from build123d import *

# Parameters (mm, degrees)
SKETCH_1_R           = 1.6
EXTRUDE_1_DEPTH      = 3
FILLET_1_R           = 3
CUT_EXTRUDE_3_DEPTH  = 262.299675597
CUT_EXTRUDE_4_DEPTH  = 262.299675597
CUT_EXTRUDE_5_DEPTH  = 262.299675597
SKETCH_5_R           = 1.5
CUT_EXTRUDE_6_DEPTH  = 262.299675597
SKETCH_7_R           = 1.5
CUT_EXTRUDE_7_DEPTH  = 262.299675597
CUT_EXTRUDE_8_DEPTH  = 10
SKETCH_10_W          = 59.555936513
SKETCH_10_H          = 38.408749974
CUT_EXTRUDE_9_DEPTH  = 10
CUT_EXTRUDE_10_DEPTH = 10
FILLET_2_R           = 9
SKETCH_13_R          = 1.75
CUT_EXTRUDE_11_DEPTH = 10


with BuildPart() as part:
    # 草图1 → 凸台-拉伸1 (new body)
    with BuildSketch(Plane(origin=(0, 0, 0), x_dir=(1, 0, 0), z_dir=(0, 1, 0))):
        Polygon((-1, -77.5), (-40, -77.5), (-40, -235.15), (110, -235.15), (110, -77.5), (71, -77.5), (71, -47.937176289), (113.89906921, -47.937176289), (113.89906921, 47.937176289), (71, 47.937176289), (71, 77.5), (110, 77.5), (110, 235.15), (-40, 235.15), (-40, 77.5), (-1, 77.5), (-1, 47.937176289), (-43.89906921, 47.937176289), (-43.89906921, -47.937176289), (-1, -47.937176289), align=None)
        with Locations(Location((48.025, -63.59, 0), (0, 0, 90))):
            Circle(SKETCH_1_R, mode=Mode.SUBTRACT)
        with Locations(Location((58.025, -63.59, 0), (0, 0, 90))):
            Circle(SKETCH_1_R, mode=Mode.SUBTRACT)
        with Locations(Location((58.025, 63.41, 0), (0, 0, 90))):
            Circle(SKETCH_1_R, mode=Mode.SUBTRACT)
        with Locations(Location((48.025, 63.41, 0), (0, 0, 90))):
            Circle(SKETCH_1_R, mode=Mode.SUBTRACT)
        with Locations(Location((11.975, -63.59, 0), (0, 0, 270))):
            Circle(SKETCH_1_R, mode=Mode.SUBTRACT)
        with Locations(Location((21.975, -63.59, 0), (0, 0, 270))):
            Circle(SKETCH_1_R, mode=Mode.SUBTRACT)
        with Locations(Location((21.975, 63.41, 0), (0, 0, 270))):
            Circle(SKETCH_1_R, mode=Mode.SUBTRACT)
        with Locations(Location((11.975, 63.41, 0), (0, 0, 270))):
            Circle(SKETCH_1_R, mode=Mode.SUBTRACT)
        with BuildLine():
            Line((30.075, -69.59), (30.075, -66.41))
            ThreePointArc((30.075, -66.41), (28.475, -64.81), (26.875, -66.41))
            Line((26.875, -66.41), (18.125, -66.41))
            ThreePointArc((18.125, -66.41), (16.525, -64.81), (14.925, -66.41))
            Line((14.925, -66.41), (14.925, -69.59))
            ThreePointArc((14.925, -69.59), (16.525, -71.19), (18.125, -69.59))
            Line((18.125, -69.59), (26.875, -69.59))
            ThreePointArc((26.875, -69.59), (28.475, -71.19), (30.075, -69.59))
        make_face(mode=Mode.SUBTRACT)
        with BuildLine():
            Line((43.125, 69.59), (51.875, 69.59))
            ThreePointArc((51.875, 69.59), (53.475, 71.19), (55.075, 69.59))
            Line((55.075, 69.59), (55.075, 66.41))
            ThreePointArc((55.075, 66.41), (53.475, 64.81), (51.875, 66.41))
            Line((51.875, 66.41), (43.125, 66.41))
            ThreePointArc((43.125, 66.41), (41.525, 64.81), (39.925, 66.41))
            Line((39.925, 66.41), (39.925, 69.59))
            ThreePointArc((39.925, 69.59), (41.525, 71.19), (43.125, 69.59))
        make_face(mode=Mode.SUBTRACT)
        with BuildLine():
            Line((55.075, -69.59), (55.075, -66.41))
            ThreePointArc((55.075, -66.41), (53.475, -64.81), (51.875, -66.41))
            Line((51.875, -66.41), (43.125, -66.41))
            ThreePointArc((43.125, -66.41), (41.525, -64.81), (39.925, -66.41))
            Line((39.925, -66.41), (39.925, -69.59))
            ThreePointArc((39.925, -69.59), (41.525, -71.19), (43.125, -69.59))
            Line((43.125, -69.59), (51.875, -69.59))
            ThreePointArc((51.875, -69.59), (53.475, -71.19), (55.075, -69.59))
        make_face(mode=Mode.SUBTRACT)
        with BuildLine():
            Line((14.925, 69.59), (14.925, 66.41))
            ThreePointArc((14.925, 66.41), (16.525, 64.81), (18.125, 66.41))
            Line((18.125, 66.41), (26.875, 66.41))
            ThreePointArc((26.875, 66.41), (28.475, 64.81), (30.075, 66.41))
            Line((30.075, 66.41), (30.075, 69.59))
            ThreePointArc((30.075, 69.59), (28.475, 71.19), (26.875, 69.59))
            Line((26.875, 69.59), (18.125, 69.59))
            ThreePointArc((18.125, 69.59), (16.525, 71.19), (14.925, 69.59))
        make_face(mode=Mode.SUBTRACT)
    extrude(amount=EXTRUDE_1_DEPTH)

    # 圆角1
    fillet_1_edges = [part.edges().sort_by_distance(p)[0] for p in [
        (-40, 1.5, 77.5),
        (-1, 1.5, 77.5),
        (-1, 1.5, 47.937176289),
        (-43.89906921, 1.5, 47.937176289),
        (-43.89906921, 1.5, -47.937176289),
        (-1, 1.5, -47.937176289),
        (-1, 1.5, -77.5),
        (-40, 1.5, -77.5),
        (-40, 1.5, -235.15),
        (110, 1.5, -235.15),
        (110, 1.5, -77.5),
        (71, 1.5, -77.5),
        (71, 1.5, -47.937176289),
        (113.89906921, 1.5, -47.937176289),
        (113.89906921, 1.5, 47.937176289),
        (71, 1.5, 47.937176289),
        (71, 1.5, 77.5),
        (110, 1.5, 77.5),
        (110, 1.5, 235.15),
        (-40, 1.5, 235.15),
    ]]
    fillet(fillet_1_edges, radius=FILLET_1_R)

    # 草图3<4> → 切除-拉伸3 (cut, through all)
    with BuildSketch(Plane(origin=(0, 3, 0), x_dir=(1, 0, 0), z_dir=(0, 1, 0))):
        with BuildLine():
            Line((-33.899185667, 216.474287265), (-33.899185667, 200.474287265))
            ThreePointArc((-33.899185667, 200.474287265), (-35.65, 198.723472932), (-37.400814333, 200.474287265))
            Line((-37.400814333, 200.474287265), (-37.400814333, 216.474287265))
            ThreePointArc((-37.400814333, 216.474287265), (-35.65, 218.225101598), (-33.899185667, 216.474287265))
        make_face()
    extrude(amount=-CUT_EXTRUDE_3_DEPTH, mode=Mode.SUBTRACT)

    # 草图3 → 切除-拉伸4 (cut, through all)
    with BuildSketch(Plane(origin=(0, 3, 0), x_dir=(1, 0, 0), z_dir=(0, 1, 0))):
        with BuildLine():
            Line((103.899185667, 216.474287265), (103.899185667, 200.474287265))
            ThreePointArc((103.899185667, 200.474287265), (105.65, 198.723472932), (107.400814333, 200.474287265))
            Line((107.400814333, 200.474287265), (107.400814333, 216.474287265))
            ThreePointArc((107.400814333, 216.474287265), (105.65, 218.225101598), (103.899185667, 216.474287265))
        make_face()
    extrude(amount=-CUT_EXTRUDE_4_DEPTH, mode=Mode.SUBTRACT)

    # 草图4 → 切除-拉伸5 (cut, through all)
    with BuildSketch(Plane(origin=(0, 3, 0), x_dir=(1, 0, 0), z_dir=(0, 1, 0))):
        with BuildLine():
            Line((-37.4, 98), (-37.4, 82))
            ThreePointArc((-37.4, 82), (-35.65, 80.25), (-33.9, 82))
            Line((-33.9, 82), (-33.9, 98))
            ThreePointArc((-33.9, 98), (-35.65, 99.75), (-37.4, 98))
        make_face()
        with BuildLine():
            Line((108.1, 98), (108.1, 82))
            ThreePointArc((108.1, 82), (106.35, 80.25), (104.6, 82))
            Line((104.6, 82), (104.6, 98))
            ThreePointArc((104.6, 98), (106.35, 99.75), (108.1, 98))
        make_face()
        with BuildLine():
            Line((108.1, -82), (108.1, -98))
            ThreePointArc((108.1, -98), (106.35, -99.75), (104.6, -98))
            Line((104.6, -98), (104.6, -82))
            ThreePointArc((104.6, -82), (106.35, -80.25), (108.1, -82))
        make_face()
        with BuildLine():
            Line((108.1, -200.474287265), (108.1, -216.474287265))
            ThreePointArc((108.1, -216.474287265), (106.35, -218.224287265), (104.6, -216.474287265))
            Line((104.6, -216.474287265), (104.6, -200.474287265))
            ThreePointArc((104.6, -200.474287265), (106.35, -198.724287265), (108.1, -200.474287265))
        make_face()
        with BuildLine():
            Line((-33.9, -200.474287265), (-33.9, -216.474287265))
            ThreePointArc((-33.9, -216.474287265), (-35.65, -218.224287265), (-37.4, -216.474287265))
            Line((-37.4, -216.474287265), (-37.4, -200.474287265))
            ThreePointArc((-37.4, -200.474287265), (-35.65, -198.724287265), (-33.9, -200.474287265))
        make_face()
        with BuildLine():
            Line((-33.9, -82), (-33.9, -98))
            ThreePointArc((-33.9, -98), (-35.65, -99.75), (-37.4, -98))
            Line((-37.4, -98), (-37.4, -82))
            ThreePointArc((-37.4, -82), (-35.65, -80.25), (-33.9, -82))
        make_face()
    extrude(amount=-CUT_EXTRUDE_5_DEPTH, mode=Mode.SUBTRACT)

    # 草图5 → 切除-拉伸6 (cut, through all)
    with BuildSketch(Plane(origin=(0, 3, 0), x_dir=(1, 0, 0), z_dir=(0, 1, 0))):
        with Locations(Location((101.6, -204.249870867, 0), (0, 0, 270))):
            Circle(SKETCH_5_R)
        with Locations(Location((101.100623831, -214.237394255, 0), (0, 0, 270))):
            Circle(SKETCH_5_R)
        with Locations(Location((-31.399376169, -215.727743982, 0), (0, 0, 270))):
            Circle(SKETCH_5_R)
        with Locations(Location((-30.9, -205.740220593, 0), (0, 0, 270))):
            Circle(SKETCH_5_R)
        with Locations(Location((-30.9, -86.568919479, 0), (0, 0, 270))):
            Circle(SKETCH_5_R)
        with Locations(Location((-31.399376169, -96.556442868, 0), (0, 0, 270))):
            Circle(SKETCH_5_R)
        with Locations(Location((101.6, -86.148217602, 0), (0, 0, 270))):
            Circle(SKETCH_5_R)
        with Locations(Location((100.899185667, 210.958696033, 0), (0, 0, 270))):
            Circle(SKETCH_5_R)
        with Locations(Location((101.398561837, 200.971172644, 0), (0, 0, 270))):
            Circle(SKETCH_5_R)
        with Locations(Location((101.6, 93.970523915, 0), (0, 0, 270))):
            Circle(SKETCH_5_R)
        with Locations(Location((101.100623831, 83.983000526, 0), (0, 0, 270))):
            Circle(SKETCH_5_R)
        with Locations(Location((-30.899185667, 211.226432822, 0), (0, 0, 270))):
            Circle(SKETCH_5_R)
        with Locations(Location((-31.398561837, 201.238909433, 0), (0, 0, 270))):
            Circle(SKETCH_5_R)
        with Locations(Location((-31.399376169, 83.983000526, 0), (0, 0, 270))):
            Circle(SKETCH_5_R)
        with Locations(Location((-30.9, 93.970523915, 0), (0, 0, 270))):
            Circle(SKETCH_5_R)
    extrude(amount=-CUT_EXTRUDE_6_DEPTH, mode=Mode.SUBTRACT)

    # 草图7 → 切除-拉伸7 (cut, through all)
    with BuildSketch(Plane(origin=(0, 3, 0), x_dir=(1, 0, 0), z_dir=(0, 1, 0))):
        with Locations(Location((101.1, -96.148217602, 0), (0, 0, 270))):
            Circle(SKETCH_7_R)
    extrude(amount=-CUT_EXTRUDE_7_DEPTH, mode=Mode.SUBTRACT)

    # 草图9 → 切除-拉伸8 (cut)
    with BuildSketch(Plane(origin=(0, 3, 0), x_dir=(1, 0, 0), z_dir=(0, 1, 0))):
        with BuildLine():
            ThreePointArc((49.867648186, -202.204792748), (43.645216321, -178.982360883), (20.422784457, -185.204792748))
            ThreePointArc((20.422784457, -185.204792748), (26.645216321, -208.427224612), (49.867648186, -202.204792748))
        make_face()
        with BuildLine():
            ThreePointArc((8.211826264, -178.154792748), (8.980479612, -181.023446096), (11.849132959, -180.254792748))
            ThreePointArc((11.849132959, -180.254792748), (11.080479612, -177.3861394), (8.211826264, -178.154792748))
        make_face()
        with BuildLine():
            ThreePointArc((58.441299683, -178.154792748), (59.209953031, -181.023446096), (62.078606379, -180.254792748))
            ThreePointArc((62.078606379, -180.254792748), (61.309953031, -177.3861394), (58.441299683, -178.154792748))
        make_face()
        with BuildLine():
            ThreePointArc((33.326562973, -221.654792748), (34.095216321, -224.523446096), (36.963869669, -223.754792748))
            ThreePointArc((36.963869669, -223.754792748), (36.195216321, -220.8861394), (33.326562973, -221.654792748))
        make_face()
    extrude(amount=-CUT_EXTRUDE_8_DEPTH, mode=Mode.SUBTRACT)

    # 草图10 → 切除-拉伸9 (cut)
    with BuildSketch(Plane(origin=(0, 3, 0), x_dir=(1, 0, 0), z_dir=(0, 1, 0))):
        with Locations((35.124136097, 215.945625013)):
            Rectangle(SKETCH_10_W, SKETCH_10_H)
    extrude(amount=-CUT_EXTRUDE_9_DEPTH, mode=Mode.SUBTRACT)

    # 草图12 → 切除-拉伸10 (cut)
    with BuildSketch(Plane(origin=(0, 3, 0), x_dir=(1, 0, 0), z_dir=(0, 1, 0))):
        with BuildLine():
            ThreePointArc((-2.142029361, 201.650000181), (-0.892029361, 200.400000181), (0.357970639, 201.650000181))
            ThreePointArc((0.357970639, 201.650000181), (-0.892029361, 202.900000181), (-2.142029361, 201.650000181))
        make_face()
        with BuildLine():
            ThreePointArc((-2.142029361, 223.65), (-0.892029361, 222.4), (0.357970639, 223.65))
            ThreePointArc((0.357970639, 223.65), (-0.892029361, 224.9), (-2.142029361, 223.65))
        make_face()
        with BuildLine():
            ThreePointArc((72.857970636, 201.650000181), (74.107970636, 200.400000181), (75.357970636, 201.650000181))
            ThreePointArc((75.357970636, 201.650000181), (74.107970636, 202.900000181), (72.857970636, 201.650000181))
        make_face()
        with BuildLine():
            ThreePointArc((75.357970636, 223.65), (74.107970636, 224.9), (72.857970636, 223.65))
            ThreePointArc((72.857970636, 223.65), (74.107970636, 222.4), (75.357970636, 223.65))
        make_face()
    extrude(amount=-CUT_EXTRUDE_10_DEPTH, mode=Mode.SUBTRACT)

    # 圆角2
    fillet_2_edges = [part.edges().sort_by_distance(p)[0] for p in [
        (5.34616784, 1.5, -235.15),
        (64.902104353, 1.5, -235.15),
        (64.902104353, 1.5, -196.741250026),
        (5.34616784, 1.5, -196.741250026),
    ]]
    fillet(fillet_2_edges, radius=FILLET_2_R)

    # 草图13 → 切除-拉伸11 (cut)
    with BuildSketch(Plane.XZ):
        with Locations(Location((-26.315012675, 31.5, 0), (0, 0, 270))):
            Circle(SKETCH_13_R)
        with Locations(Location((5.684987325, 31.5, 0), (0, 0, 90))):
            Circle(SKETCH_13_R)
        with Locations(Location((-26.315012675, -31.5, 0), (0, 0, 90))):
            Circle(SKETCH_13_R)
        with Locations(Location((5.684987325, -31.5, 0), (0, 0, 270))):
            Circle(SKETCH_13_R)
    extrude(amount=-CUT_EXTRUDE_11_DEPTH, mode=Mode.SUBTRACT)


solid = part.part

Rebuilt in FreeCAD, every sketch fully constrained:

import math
import FreeCAD as App
import Part
import Sketcher
from FreeCAD import Vector
Q = App.Units.Quantity


def edges_at(feature, points):
    """Names of the edges that pass closest to the given points."""
    edges = feature.Shape.Edges
    near = lambda p: min(range(len(edges)), key=lambda i: edges[i].distToShape(Part.Vertex(*p))[0])
    return sorted({f"Edge{near(p) + 1}" for p in points})


def add_polygon(sketch, points):
    """Adds a closed chain of lines whose ends are joined by coincident constraints."""
    first, n = sketch.GeometryCount, len(points)
    for a, b in zip(points, points[1:] + points[:1]):
        sketch.addGeometry(Part.LineSegment(App.Vector(*a, 0), App.Vector(*b, 0)), False)
    for i in range(n):
        sketch.addConstraint(Sketcher.Constraint("Coincident", first + i, 2, first + (i + 1) % n, 1))

doc = App.newDocument("Part")
params = doc.addObject("Spreadsheet::Sheet", "Params")
for row, (alias, value) in enumerate([
    ("sketch1_diameter", "3.2 mm"),
    ("sketch1_width", "39 mm"),
    ("sketch1_width2", "150 mm"),
    ("sketch1_width3", "8.75 mm"),
    ("sketch1_height", "157.65 mm"),
    ("pad1_length", "3 mm"),
    ("fillet_radius", "3 mm"),
    ("sketch2_height", "16 mm"),
    ("sketch3_height", "16 mm"),
    ("sketch4_height", "16 mm"),
    ("sketch4_radius", "1.75 mm"),
    ("sketch5_diameter", "3 mm"),
    ("sketch6_diameter", "3 mm"),
    ("sketch7_diameter", "34 mm"),
    ("sketch7_diameter2", "4.2 mm"),
    ("pocket6_length", "10 mm"),
    ("pocket7_length", "10 mm"),
    ("sketch9_diameter", "2.5 mm"),
    ("pocket8_length", "10 mm"),
    ("fillet2_radius", "9 mm"),
    ("sketch10_diameter", "3.5 mm"),
    ("pocket9_length", "10 mm"),
], start=1):
    params.set(f"A{row}", alias)
    params.set(f"B{row}", "=" + value)
    params.setAlias(f"B{row}", alias)

body = doc.addObject("PartDesign::Body", "Body")

# Sketch on XZ plane
sketch1 = body.newObject("Sketcher::SketchObject", "Sketch")
sketch1.AttachmentSupport = (doc.getObject("XZ_Plane"), [""])
sketch1.MapMode = "FlatFace"
add_polygon(sketch1, [(-1, 77.5), (-40, 77.5), (-40, 235.2), (110, 235.2), (110, 77.5), (71, 77.5), (71, 47.9), (113.9, 47.9), (113.9, -47.9), (71, -47.9), (71, -77.5), (110, -77.5), (110, -235.2), (-40, -235.2), (-40, -77.5), (-1, -77.5), (-1, -47.9), (-43.9, -47.9), (-43.9, 47.9), (-1, 47.9)])  # lines 0-19
sketch1.addGeometry(Part.Circle(Vector(12, 63.6, 0), Vector(0, 0, 1), 1.6), False)  # 20
sketch1.addGeometry(Part.LineSegment(Vector(30.1, 66.4, 0), Vector(30.1, 69.6, 0)), False)  # 21
sketch1.addGeometry(Part.ArcOfCircle(Part.Circle(Vector(28.5, 69.6, 0), Vector(0, 0, 1), 1.6), math.radians(0), math.radians(180)), False)  # 22
sketch1.addGeometry(Part.LineSegment(Vector(26.9, 69.6, 0), Vector(18.1, 69.6, 0)), False)  # 23
sketch1.addGeometry(Part.ArcOfCircle(Part.Circle(Vector(16.5, 69.6, 0), Vector(0, 0, 1), 1.6), math.radians(0), math.radians(180)), False)  # 24
sketch1.addGeometry(Part.LineSegment(Vector(14.9, 69.6, 0), Vector(14.9, 66.4, 0)), False)  # 25
sketch1.addGeometry(Part.ArcOfCircle(Part.Circle(Vector(16.5, 66.4, 0), Vector(0, 0, 1), 1.6), math.radians(180), math.radians(360)), False)  # 26
sketch1.addGeometry(Part.LineSegment(Vector(18.1, 66.4, 0), Vector(26.9, 66.4, 0)), False)  # 27
sketch1.addGeometry(Part.ArcOfCircle(Part.Circle(Vector(28.5, 66.4, 0), Vector(0, 0, 1), 1.6), math.radians(180), math.radians(360)), False)  # 28
sketch1.addGeometry(Part.Circle(Vector(22, 63.6, 0), Vector(0, 0, 1), 1.6), False)  # 29
sketch1.addGeometry(Part.LineSegment(Vector(55.1, 66.4, 0), Vector(55.1, 69.6, 0)), False)  # 30
sketch1.addGeometry(Part.ArcOfCircle(Part.Circle(Vector(53.5, 69.6, 0), Vector(0, 0, 1), 1.6), math.radians(0), math.radians(180)), False)  # 31
sketch1.addGeometry(Part.LineSegment(Vector(51.9, 69.6, 0), Vector(43.1, 69.6, 0)), False)  # 32
sketch1.addGeometry(Part.ArcOfCircle(Part.Circle(Vector(41.5, 69.6, 0), Vector(0, 0, 1), 1.6), math.radians(0), math.radians(180)), False)  # 33
sketch1.addGeometry(Part.LineSegment(Vector(39.9, 69.6, 0), Vector(39.9, 66.4, 0)), False)  # 34
sketch1.addGeometry(Part.ArcOfCircle(Part.Circle(Vector(41.5, 66.4, 0), Vector(0, 0, 1), 1.6), math.radians(180), math.radians(360)), False)  # 35
sketch1.addGeometry(Part.LineSegment(Vector(43.1, 66.4, 0), Vector(51.9, 66.4, 0)), False)  # 36
sketch1.addGeometry(Part.ArcOfCircle(Part.Circle(Vector(53.5, 66.4, 0), Vector(0, 0, 1), 1.6), math.radians(180), math.radians(360)), False)  # 37
sketch1.addGeometry(Part.Circle(Vector(48, 63.6, 0), Vector(0, 0, 1), 1.6), False)  # 38
sketch1.addGeometry(Part.Circle(Vector(58, 63.6, 0), Vector(0, 0, 1), 1.6), False)  # 39
sketch1.addGeometry(Part.Circle(Vector(12, -63.4, 0), Vector(0, 0, 1), 1.6), False)  # 40
sketch1.addGeometry(Part.Circle(Vector(22, -63.4, 0), Vector(0, 0, 1), 1.6), False)  # 41
sketch1.addGeometry(Part.LineSegment(Vector(14.9, -66.4, 0), Vector(14.9, -69.6, 0)), False)  # 42
sketch1.addGeometry(Part.ArcOfCircle(Part.Circle(Vector(16.5, -69.6, 0), Vector(0, 0, 1), 1.6), math.radians(180), math.radians(360)), False)  # 43
sketch1.addGeometry(Part.LineSegment(Vector(18.1, -69.6, 0), Vector(26.9, -69.6, 0)), False)  # 44
sketch1.addGeometry(Part.ArcOfCircle(Part.Circle(Vector(28.5, -69.6, 0), Vector(0, 0, 1), 1.6), math.radians(180), math.radians(360)), False)  # 45
sketch1.addGeometry(Part.LineSegment(Vector(30.1, -69.6, 0), Vector(30.1, -66.4, 0)), False)  # 46
sketch1.addGeometry(Part.ArcOfCircle(Part.Circle(Vector(28.5, -66.4, 0), Vector(0, 0, 1), 1.6), math.radians(0), math.radians(180)), False)  # 47
sketch1.addGeometry(Part.LineSegment(Vector(26.9, -66.4, 0), Vector(18.1, -66.4, 0)), False)  # 48
sketch1.addGeometry(Part.ArcOfCircle(Part.Circle(Vector(16.5, -66.4, 0), Vector(0, 0, 1), 1.6), math.radians(0), math.radians(180)), False)  # 49
sketch1.addGeometry(Part.Circle(Vector(48, -63.4, 0), Vector(0, 0, 1), 1.6), False)  # 50
sketch1.addGeometry(Part.ArcOfCircle(Part.Circle(Vector(41.5, -69.6, 0), Vector(0, 0, 1), 1.6), math.radians(180), math.radians(360)), False)  # 51
sketch1.addGeometry(Part.LineSegment(Vector(43.1, -69.6, 0), Vector(51.9, -69.6, 0)), False)  # 52
sketch1.addGeometry(Part.ArcOfCircle(Part.Circle(Vector(53.5, -69.6, 0), Vector(0, 0, 1), 1.6), math.radians(180), math.radians(360)), False)  # 53
sketch1.addGeometry(Part.LineSegment(Vector(55.1, -69.6, 0), Vector(55.1, -66.4, 0)), False)  # 54
sketch1.addGeometry(Part.ArcOfCircle(Part.Circle(Vector(53.5, -66.4, 0), Vector(0, 0, 1), 1.6), math.radians(0), math.radians(180)), False)  # 55
sketch1.addGeometry(Part.LineSegment(Vector(51.9, -66.4, 0), Vector(43.1, -66.4, 0)), False)  # 56
sketch1.addGeometry(Part.ArcOfCircle(Part.Circle(Vector(41.5, -66.4, 0), Vector(0, 0, 1), 1.6), math.radians(0), math.radians(180)), False)  # 57
sketch1.addGeometry(Part.LineSegment(Vector(39.9, -66.4, 0), Vector(39.9, -69.6, 0)), False)  # 58
sketch1.addGeometry(Part.Circle(Vector(58, -63.4, 0), Vector(0, 0, 1), 1.6), False)  # 59
sketch1.addConstraint(Sketcher.Constraint("Tangent", 21, 2, 22, 1))
sketch1.addConstraint(Sketcher.Constraint("Coincident", 22, 2, 23, 1))
sketch1.addConstraint(Sketcher.Constraint("Coincident", 23, 2, 24, 1))
sketch1.addConstraint(Sketcher.Constraint("Tangent", 24, 2, 25, 1))
sketch1.addConstraint(Sketcher.Constraint("Tangent", 25, 2, 26, 1))
sketch1.addConstraint(Sketcher.Constraint("Coincident", 26, 2, 27, 1))
sketch1.addConstraint(Sketcher.Constraint("Coincident", 27, 2, 28, 1))
sketch1.addConstraint(Sketcher.Constraint("Tangent", 28, 2, 21, 1))
sketch1.addConstraint(Sketcher.Constraint("Tangent", 30, 2, 31, 1))
sketch1.addConstraint(Sketcher.Constraint("Coincident", 31, 2, 32, 1))
sketch1.addConstraint(Sketcher.Constraint("Coincident", 32, 2, 33, 1))
sketch1.addConstraint(Sketcher.Constraint("Tangent", 33, 2, 34, 1))
sketch1.addConstraint(Sketcher.Constraint("Tangent", 34, 2, 35, 1))
sketch1.addConstraint(Sketcher.Constraint("Coincident", 35, 2, 36, 1))
sketch1.addConstraint(Sketcher.Constraint("Coincident", 36, 2, 37, 1))
sketch1.addConstraint(Sketcher.Constraint("Tangent", 37, 2, 30, 1))
sketch1.addConstraint(Sketcher.Constraint("Tangent", 42, 2, 43, 1))
sketch1.addConstraint(Sketcher.Constraint("Coincident", 43, 2, 44, 1))
sketch1.addConstraint(Sketcher.Constraint("Coincident", 44, 2, 45, 1))
sketch1.addConstraint(Sketcher.Constraint("Tangent", 45, 2, 46, 1))
sketch1.addConstraint(Sketcher.Constraint("Tangent", 46, 2, 47, 1))
sketch1.addConstraint(Sketcher.Constraint("Coincident", 47, 2, 48, 1))
sketch1.addConstraint(Sketcher.Constraint("Coincident", 48, 2, 49, 1))
sketch1.addConstraint(Sketcher.Constraint("Tangent", 49, 2, 42, 1))
sketch1.addConstraint(Sketcher.Constraint("Coincident", 51, 2, 52, 1))
sketch1.addConstraint(Sketcher.Constraint("Coincident", 52, 2, 53, 1))
sketch1.addConstraint(Sketcher.Constraint("Tangent", 53, 2, 54, 1))
sketch1.addConstraint(Sketcher.Constraint("Tangent", 54, 2, 55, 1))
sketch1.addConstraint(Sketcher.Constraint("Coincident", 55, 2, 56, 1))
sketch1.addConstraint(Sketcher.Constraint("Coincident", 56, 2, 57, 1))
sketch1.addConstraint(Sketcher.Constraint("Tangent", 57, 2, 58, 1))
sketch1.addConstraint(Sketcher.Constraint("Tangent", 58, 2, 51, 1))
sketch1.addConstraint(Sketcher.Constraint("Horizontal", 0))
sketch1.addConstraint(Sketcher.Constraint("Vertical", 1))
sketch1.addConstraint(Sketcher.Constraint("Horizontal", 2))
sketch1.addConstraint(Sketcher.Constraint("Vertical", 3))
sketch1.addConstraint(Sketcher.Constraint("Horizontal", 4))
sketch1.addConstraint(Sketcher.Constraint("Vertical", 5))
sketch1.addConstraint(Sketcher.Constraint("Horizontal", 6))
sketch1.addConstraint(Sketcher.Constraint("Vertical", 7))
sketch1.addConstraint(Sketcher.Constraint("Horizontal", 8))
sketch1.addConstraint(Sketcher.Constraint("Vertical", 9))
sketch1.addConstraint(Sketcher.Constraint("Horizontal", 10))
sketch1.addConstraint(Sketcher.Constraint("Vertical", 11))
sketch1.addConstraint(Sketcher.Constraint("Horizontal", 12))
sketch1.addConstraint(Sketcher.Constraint("Vertical", 13))
sketch1.addConstraint(Sketcher.Constraint("Horizontal", 14))
sketch1.addConstraint(Sketcher.Constraint("Vertical", 15))
sketch1.addConstraint(Sketcher.Constraint("Horizontal", 16))
sketch1.addConstraint(Sketcher.Constraint("Vertical", 17))
sketch1.addConstraint(Sketcher.Constraint("Horizontal", 18))
sketch1.addConstraint(Sketcher.Constraint("Vertical", 19))
sketch1.addConstraint(Sketcher.Constraint("Vertical", 21))
sketch1.addConstraint(Sketcher.Constraint("Horizontal", 23))
sketch1.addConstraint(Sketcher.Constraint("Vertical", 25))
sketch1.addConstraint(Sketcher.Constraint("Horizontal", 27))
sketch1.addConstraint(Sketcher.Constraint("Vertical", 30))
sketch1.addConstraint(Sketcher.Constraint("Horizontal", 32))
sketch1.addConstraint(Sketcher.Constraint("Vertical", 34))
sketch1.addConstraint(Sketcher.Constraint("Horizontal", 36))
sketch1.addConstraint(Sketcher.Constraint("Vertical", 42))
sketch1.addConstraint(Sketcher.Constraint("Horizontal", 44))
sketch1.addConstraint(Sketcher.Constraint("Vertical", 46))
sketch1.addConstraint(Sketcher.Constraint("Horizontal", 48))
sketch1.addConstraint(Sketcher.Constraint("Horizontal", 52))
sketch1.addConstraint(Sketcher.Constraint("Vertical", 54))
sketch1.addConstraint(Sketcher.Constraint("Horizontal", 56))
sketch1.addConstraint(Sketcher.Constraint("Vertical", 58))
sketch1.addConstraint(Sketcher.Constraint("Equal", 20, 22))
sketch1.addConstraint(Sketcher.Constraint("Equal", 22, 24))
sketch1.addConstraint(Sketcher.Constraint("Equal", 24, 26))
sketch1.addConstraint(Sketcher.Constraint("Equal", 26, 28))
sketch1.addConstraint(Sketcher.Constraint("Equal", 28, 29))
sketch1.addConstraint(Sketcher.Constraint("Equal", 29, 31))
sketch1.addConstraint(Sketcher.Constraint("Equal", 31, 33))
sketch1.addConstraint(Sketcher.Constraint("Equal", 33, 35))
sketch1.addConstraint(Sketcher.Constraint("Equal", 35, 37))
sketch1.addConstraint(Sketcher.Constraint("Equal", 37, 38))
sketch1.addConstraint(Sketcher.Constraint("Equal", 38, 39))
sketch1.addConstraint(Sketcher.Constraint("Equal", 39, 40))
sketch1.addConstraint(Sketcher.Constraint("Equal", 40, 41))
sketch1.addConstraint(Sketcher.Constraint("Equal", 41, 43))
sketch1.addConstraint(Sketcher.Constraint("Equal", 43, 45))
sketch1.addConstraint(Sketcher.Constraint("Equal", 45, 47))
sketch1.addConstraint(Sketcher.Constraint("Equal", 47, 49))
sketch1.addConstraint(Sketcher.Constraint("Equal", 49, 50))
sketch1.addConstraint(Sketcher.Constraint("Equal", 50, 51))
sketch1.addConstraint(Sketcher.Constraint("Equal", 51, 53))
sketch1.addConstraint(Sketcher.Constraint("Equal", 53, 55))
sketch1.addConstraint(Sketcher.Constraint("Equal", 55, 57))
sketch1.addConstraint(Sketcher.Constraint("Equal", 57, 59))
sketch1.addConstraint(Sketcher.Constraint("Symmetric", 24, 3, 43, 3, -1))
sketch1.addConstraint(Sketcher.Constraint("Symmetric", 22, 3, 45, 3, -1))
sketch1.addConstraint(Sketcher.Constraint("Symmetric", 33, 3, 51, 3, -1))
sketch1.addConstraint(Sketcher.Constraint("Symmetric", 31, 3, 53, 3, -1))
sketch1.addConstraint(Sketcher.Constraint("Symmetric", 5, 2, 8, 2, -1))
sketch1.addConstraint(Sketcher.Constraint("Symmetric", 3, 2, 10, 2, -1))
sketch1.addConstraint(Sketcher.Constraint("Symmetric", 1, 2, 12, 2, -1))
sketch1.addConstraint(Sketcher.Constraint("Symmetric", 15, 2, 18, 2, -1))
sketch1.addConstraint(Sketcher.Constraint("Horizontal", 22, 3, 24, 3))
sketch1.addConstraint(Sketcher.Constraint("Horizontal", 26, 3, 28, 3))
sketch1.addConstraint(Sketcher.Constraint("Horizontal", 20, 3, 29, 3))
sketch1.addConstraint(Sketcher.Constraint("Horizontal", 24, 3, 31, 3))
sketch1.addConstraint(Sketcher.Constraint("Horizontal", 31, 3, 33, 3))
sketch1.addConstraint(Sketcher.Constraint("Horizontal", 28, 3, 35, 3))
sketch1.addConstraint(Sketcher.Constraint("Horizontal", 35, 3, 37, 3))
sketch1.addConstraint(Sketcher.Constraint("Horizontal", 29, 3, 38, 3))
sketch1.addConstraint(Sketcher.Constraint("Horizontal", 38, 3, 39, 3))
sketch1.addConstraint(Sketcher.Constraint("Horizontal", 40, 3, 41, 3))
sketch1.addConstraint(Sketcher.Constraint("Horizontal", 47, 3, 49, 3))
sketch1.addConstraint(Sketcher.Constraint("Horizontal", 41, 3, 50, 3))
sketch1.addConstraint(Sketcher.Constraint("Horizontal", 49, 3, 55, 3))
sketch1.addConstraint(Sketcher.Constraint("Horizontal", 55, 3, 57, 3))
sketch1.addConstraint(Sketcher.Constraint("Horizontal", 50, 3, 59, 3))
sketch1.addConstraint(Sketcher.Constraint("Horizontal", 0, 2, 3, 2))
sketch1.addConstraint(Sketcher.Constraint("Horizontal", 10, 2, 13, 2))
sketch1.addConstraint(Sketcher.Constraint("Horizontal", 8, 2, 15, 2))
sketch1.addConstraint(Sketcher.Constraint("Horizontal", 21, 2, 22, 2))
sketch1.addConstraint(Sketcher.Constraint("Horizontal", 25, 2, 26, 2))
sketch1.addConstraint(Sketcher.Constraint("Horizontal", 30, 2, 31, 2))
sketch1.addConstraint(Sketcher.Constraint("Horizontal", 34, 2, 35, 2))
sketch1.addConstraint(Sketcher.Constraint("Horizontal", 42, 2, 43, 2))
sketch1.addConstraint(Sketcher.Constraint("Horizontal", 46, 2, 47, 2))
sketch1.addConstraint(Sketcher.Constraint("Horizontal", 45, 2, 51, 2))
sketch1.addConstraint(Sketcher.Constraint("Horizontal", 54, 2, 55, 2))
sketch1.addConstraint(Sketcher.Constraint("Vertical", 20, 3, 40, 3))
sketch1.addConstraint(Sketcher.Constraint("Vertical", 29, 3, 41, 3))
sketch1.addConstraint(Sketcher.Constraint("Vertical", 38, 3, 50, 3))
sketch1.addConstraint(Sketcher.Constraint("Vertical", 39, 3, 59, 3))
sketch1.addConstraint(Sketcher.Constraint("Equal", 0, 4))
sketch1.addConstraint(Sketcher.Constraint("Equal", 8, 16))
sketch1.addConstraint(Sketcher.Constraint("Equal", 27, 32))
sketch1.addConstraint(Sketcher.Constraint("Equal", 34, 42))
sketch1.addConstraint(Sketcher.Constraint("Diameter", 20, Q("3.2 mm")))
sketch1.addConstraint(Sketcher.Constraint("DistanceX", 0, 2, 0, 1, Q("39 mm")))
sketch1.addConstraint(Sketcher.Constraint("DistanceX", 2, 1, 2, 2, Q("150 mm")))
sketch1.addConstraint(Sketcher.Constraint("DistanceX", 0, 2, -1, 1, Q("40 mm")))
sketch1.addConstraint(Sketcher.Constraint("DistanceX", 23, 2, 23, 1, Q("8.75 mm")))
sketch1.addConstraint(Sketcher.Constraint("DistanceY", 1, 1, 1, 2, Q("157.65 mm")))
sketch1.addConstraint(Sketcher.Constraint("DistanceY", 21, 1, 21, 2, Q("3.18 mm")))
sketch1.addConstraint(Sketcher.Constraint("DistanceY", -1, 1, 0, 2, Q("77.5 mm")))
sketch1.addConstraint(Sketcher.Constraint("DistanceY", -1, 1, 20, 3, Q("63.59 mm")))
sketch1.addConstraint(Sketcher.Constraint("DistanceY", -1, 1, 22, 3, Q("69.59 mm")))
sketch1.addConstraint(Sketcher.Constraint("DistanceY", 40, 3, -1, 1, Q("63.41 mm")))
sketch1.addConstraint(Sketcher.Constraint("DistanceX", -1, 1, 20, 3, Q("11.975 mm")))
sketch1.addConstraint(Sketcher.Constraint("DistanceX", -1, 1, 22, 3, Q("28.475 mm")))
sketch1.addConstraint(Sketcher.Constraint("DistanceX", -1, 1, 29, 3, Q("21.975 mm")))
sketch1.addConstraint(Sketcher.Constraint("DistanceX", -1, 1, 31, 3, Q("53.475 mm")))
sketch1.addConstraint(Sketcher.Constraint("DistanceX", -1, 1, 38, 3, Q("48.025 mm")))
sketch1.addConstraint(Sketcher.Constraint("DistanceX", -1, 1, 39, 3, Q("58.025 mm")))
sketch1.addConstraint(Sketcher.Constraint("DistanceX", 6, 1, 6, 2, Q("42.899069 mm")))
sketch1.addConstraint(Sketcher.Constraint("DistanceY", 5, 2, 5, 1, Q("29.562824 mm")))
sketch1.setExpression("Constraints[153]", "Params.sketch1_diameter")
sketch1.setExpression("Constraints[154]", "Params.sketch1_width")
sketch1.setExpression("Constraints[155]", "Params.sketch1_width2")
sketch1.setExpression("Constraints[157]", "Params.sketch1_width3")
sketch1.setExpression("Constraints[158]", "Params.sketch1_height")
pad1 = body.newObject("PartDesign::Pad", "Pad")
pad1.Profile = sketch1
pad1.setExpression("Length", "Params.pad1_length")
pad1.Reversed = True
doc.recompute()

fillet = body.newObject("PartDesign::Fillet", "Fillet")
fillet.Base = (pad1, edges_at(pad1, [
    (-40, 1.5, 77.5),
    (-1, 1.5, 77.5),
    (-1, 1.5, 47.937),
    (-43.899, 1.5, 47.937),
    (-43.899, 1.5, -47.937),
    (-1, 1.5, -47.937),
    (-1, 1.5, -77.5),
    (-40, 1.5, -77.5),
    (-40, 1.5, -235.15),
    (110, 1.5, -235.15),
    (110, 1.5, -77.5),
    (71, 1.5, -77.5),
    (71, 1.5, -47.937),
    (113.899, 1.5, -47.937),
    (113.899, 1.5, 47.937),
    (71, 1.5, 47.937),
    (71, 1.5, 77.5),
    (110, 1.5, 77.5),
    (110, 1.5, 235.15),
    (-40, 1.5, 235.15),
]))
fillet.setExpression("Radius", "Params.fillet_radius")

# Sketch on XZ plane
sketch2 = body.newObject("Sketcher::SketchObject", "Sketch001")
sketch2.AttachmentSupport = (doc.getObject("XZ_Plane"), [""])
sketch2.MapMode = "FlatFace"
sketch2.AttachmentOffset = App.Placement(Vector(0, 0, -3), App.Rotation())
sketch2.addGeometry(Part.LineSegment(Vector(-33.9, -200.5, 0), Vector(-33.9, -216.5, 0)), False)
sketch2.addGeometry(Part.ArcOfCircle(Part.Circle(Vector(-35.6, -216.5, 0), Vector(0, 0, 1), 1.8), math.radians(180), math.radians(360)), False)
sketch2.addGeometry(Part.LineSegment(Vector(-37.4, -216.5, 0), Vector(-37.4, -200.5, 0)), False)
sketch2.addGeometry(Part.ArcOfCircle(Part.Circle(Vector(-35.6, -200.5, 0), Vector(0, 0, 1), 1.8), math.radians(0), math.radians(180)), False)
sketch2.addConstraint(Sketcher.Constraint("Tangent", 0, 2, 1, 2))
sketch2.addConstraint(Sketcher.Constraint("Tangent", 1, 1, 2, 1))
sketch2.addConstraint(Sketcher.Constraint("Tangent", 2, 2, 3, 2))
sketch2.addConstraint(Sketcher.Constraint("Tangent", 3, 1, 0, 1))
sketch2.addConstraint(Sketcher.Constraint("Vertical", 0))
sketch2.addConstraint(Sketcher.Constraint("Vertical", 2))
sketch2.addConstraint(Sketcher.Constraint("DistanceY", 0, 2, 0, 1, Q("16 mm")))
sketch2.addConstraint(Sketcher.Constraint("DistanceX", 1, 3, -1, 1, Q("35.65 mm")))
sketch2.addConstraint(Sketcher.Constraint("Radius", 1, Q("1.750814 mm")))
sketch2.addConstraint(Sketcher.Constraint("DistanceY", 1, 3, -1, 1, Q("216.474287 mm")))
sketch2.setExpression("Constraints[6]", "Params.sketch2_height")
pocket1 = body.newObject("PartDesign::Pocket", "Pocket")
pocket1.Profile = sketch2
pocket1.Type = "ThroughAll"
pocket1.Reversed = True

# Sketch on XZ plane
sketch3 = body.newObject("Sketcher::SketchObject", "Sketch002")
sketch3.AttachmentSupport = (doc.getObject("XZ_Plane"), [""])
sketch3.MapMode = "FlatFace"
sketch3.AttachmentOffset = App.Placement(Vector(0, 0, -3), App.Rotation())
sketch3.addGeometry(Part.LineSegment(Vector(103.9, -216.5, 0), Vector(103.9, -200.5, 0)), False)
sketch3.addGeometry(Part.ArcOfCircle(Part.Circle(Vector(105.7, -200.5, 0), Vector(0, 0, 1), 1.8), math.radians(0), math.radians(180)), False)
sketch3.addGeometry(Part.LineSegment(Vector(107.4, -200.5, 0), Vector(107.4, -216.5, 0)), False)
sketch3.addGeometry(Part.ArcOfCircle(Part.Circle(Vector(105.7, -216.5, 0), Vector(0, 0, 1), 1.8), math.radians(180), math.radians(360)), False)
sketch3.addConstraint(Sketcher.Constraint("Tangent", 0, 2, 1, 2))
sketch3.addConstraint(Sketcher.Constraint("Tangent", 1, 1, 2, 1))
sketch3.addConstraint(Sketcher.Constraint("Tangent", 2, 2, 3, 2))
sketch3.addConstraint(Sketcher.Constraint("Tangent", 3, 1, 0, 1))
sketch3.addConstraint(Sketcher.Constraint("Vertical", 0))
sketch3.addConstraint(Sketcher.Constraint("Vertical", 2))
sketch3.addConstraint(Sketcher.Constraint("DistanceY", 0, 1, 0, 2, Q("16 mm")))
sketch3.addConstraint(Sketcher.Constraint("DistanceX", -1, 1, 1, 3, Q("105.65 mm")))
sketch3.addConstraint(Sketcher.Constraint("Radius", 1, Q("1.750814 mm")))
sketch3.addConstraint(Sketcher.Constraint("DistanceY", 1, 3, -1, 1, Q("200.474287 mm")))
sketch3.setExpression("Constraints[6]", "Params.sketch3_height")
pocket2 = body.newObject("PartDesign::Pocket", "Pocket001")
pocket2.Profile = sketch3
pocket2.Type = "ThroughAll"
pocket2.Reversed = True

# Sketch on XZ plane
sketch4 = body.newObject("Sketcher::SketchObject", "Sketch003")
sketch4.AttachmentSupport = (doc.getObject("XZ_Plane"), [""])
sketch4.MapMode = "FlatFace"
sketch4.AttachmentOffset = App.Placement(Vector(0, 0, -3), App.Rotation())
sketch4.addGeometry(Part.LineSegment(Vector(-37.4, -98, 0), Vector(-37.4, -82, 0)), False)
sketch4.addGeometry(Part.ArcOfCircle(Part.Circle(Vector(-35.6, -82, 0), Vector(0, 0, 1), 1.8), math.radians(0), math.radians(180)), False)
sketch4.addGeometry(Part.LineSegment(Vector(-33.9, -82, 0), Vector(-33.9, -98, 0)), False)
sketch4.addGeometry(Part.ArcOfCircle(Part.Circle(Vector(-35.6, -98, 0), Vector(0, 0, 1), 1.8), math.radians(180), math.radians(360)), False)
sketch4.addGeometry(Part.LineSegment(Vector(108.1, -82, 0), Vector(108.1, -98, 0)), False)
sketch4.addGeometry(Part.ArcOfCircle(Part.Circle(Vector(106.3, -98, 0), Vector(0, 0, 1), 1.8), math.radians(180), math.radians(360)), False)
sketch4.addGeometry(Part.LineSegment(Vector(104.6, -98, 0), Vector(104.6, -82, 0)), False)
sketch4.addGeometry(Part.ArcOfCircle(Part.Circle(Vector(106.3, -82, 0), Vector(0, 0, 1), 1.8), math.radians(0), math.radians(180)), False)
sketch4.addGeometry(Part.LineSegment(Vector(108.1, 98, 0), Vector(108.1, 82, 0)), False)
sketch4.addGeometry(Part.ArcOfCircle(Part.Circle(Vector(106.3, 82, 0), Vector(0, 0, 1), 1.8), math.radians(180), math.radians(360)), False)
sketch4.addGeometry(Part.LineSegment(Vector(104.6, 82, 0), Vector(104.6, 98, 0)), False)
sketch4.addGeometry(Part.ArcOfCircle(Part.Circle(Vector(106.3, 98, 0), Vector(0, 0, 1), 1.8), math.radians(0), math.radians(180)), False)
sketch4.addGeometry(Part.LineSegment(Vector(108.1, 216.5, 0), Vector(108.1, 200.5, 0)), False)
sketch4.addGeometry(Part.ArcOfCircle(Part.Circle(Vector(106.3, 200.5, 0), Vector(0, 0, 1), 1.8), math.radians(180), math.radians(360)), False)
sketch4.addGeometry(Part.LineSegment(Vector(104.6, 200.5, 0), Vector(104.6, 216.5, 0)), False)
sketch4.addGeometry(Part.ArcOfCircle(Part.Circle(Vector(106.3, 216.5, 0), Vector(0, 0, 1), 1.8), math.radians(0), math.radians(180)), False)
sketch4.addGeometry(Part.LineSegment(Vector(-33.9, 216.5, 0), Vector(-33.9, 200.5, 0)), False)
sketch4.addGeometry(Part.ArcOfCircle(Part.Circle(Vector(-35.6, 200.5, 0), Vector(0, 0, 1), 1.8), math.radians(180), math.radians(360)), False)
sketch4.addGeometry(Part.LineSegment(Vector(-37.4, 200.5, 0), Vector(-37.4, 216.5, 0)), False)
sketch4.addGeometry(Part.ArcOfCircle(Part.Circle(Vector(-35.6, 216.5, 0), Vector(0, 0, 1), 1.8), math.radians(0), math.radians(180)), False)
sketch4.addGeometry(Part.LineSegment(Vector(-33.9, 98, 0), Vector(-33.9, 82, 0)), False)
sketch4.addGeometry(Part.ArcOfCircle(Part.Circle(Vector(-35.6, 82, 0), Vector(0, 0, 1), 1.8), math.radians(180), math.radians(360)), False)
sketch4.addGeometry(Part.LineSegment(Vector(-37.4, 82, 0), Vector(-37.4, 98, 0)), False)
sketch4.addGeometry(Part.ArcOfCircle(Part.Circle(Vector(-35.6, 98, 0), Vector(0, 0, 1), 1.8), math.radians(0), math.radians(180)), False)
sketch4.addConstraint(Sketcher.Constraint("Tangent", 0, 2, 1, 2))
sketch4.addConstraint(Sketcher.Constraint("Tangent", 1, 1, 2, 1))
sketch4.addConstraint(Sketcher.Constraint("Tangent", 2, 2, 3, 2))
sketch4.addConstraint(Sketcher.Constraint("Tangent", 3, 1, 0, 1))
sketch4.addConstraint(Sketcher.Constraint("Tangent", 4, 2, 5, 2))
sketch4.addConstraint(Sketcher.Constraint("Tangent", 5, 1, 6, 1))
sketch4.addConstraint(Sketcher.Constraint("Tangent", 6, 2, 7, 2))
sketch4.addConstraint(Sketcher.Constraint("Tangent", 7, 1, 4, 1))
sketch4.addConstraint(Sketcher.Constraint("Tangent", 8, 2, 9, 2))
sketch4.addConstraint(Sketcher.Constraint("Tangent", 9, 1, 10, 1))
sketch4.addConstraint(Sketcher.Constraint("Tangent", 10, 2, 11, 2))
sketch4.addConstraint(Sketcher.Constraint("Tangent", 11, 1, 8, 1))
sketch4.addConstraint(Sketcher.Constraint("Tangent", 12, 2, 13, 2))
sketch4.addConstraint(Sketcher.Constraint("Tangent", 13, 1, 14, 1))
sketch4.addConstraint(Sketcher.Constraint("Tangent", 14, 2, 15, 2))
sketch4.addConstraint(Sketcher.Constraint("Tangent", 15, 1, 12, 1))
sketch4.addConstraint(Sketcher.Constraint("Tangent", 16, 2, 17, 2))
sketch4.addConstraint(Sketcher.Constraint("Tangent", 17, 1, 18, 1))
sketch4.addConstraint(Sketcher.Constraint("Tangent", 18, 2, 19, 2))
sketch4.addConstraint(Sketcher.Constraint("Tangent", 19, 1, 16, 1))
sketch4.addConstraint(Sketcher.Constraint("Tangent", 20, 2, 21, 2))
sketch4.addConstraint(Sketcher.Constraint("Tangent", 21, 1, 22, 1))
sketch4.addConstraint(Sketcher.Constraint("Tangent", 22, 2, 23, 2))
sketch4.addConstraint(Sketcher.Constraint("Tangent", 23, 1, 20, 1))
sketch4.addConstraint(Sketcher.Constraint("Vertical", 0))
sketch4.addConstraint(Sketcher.Constraint("Vertical", 2))
sketch4.addConstraint(Sketcher.Constraint("Vertical", 4))
sketch4.addConstraint(Sketcher.Constraint("Vertical", 6))
sketch4.addConstraint(Sketcher.Constraint("Vertical", 8))
sketch4.addConstraint(Sketcher.Constraint("Vertical", 10))
sketch4.addConstraint(Sketcher.Constraint("Vertical", 12))
sketch4.addConstraint(Sketcher.Constraint("Vertical", 14))
sketch4.addConstraint(Sketcher.Constraint("Vertical", 16))
sketch4.addConstraint(Sketcher.Constraint("Vertical", 18))
sketch4.addConstraint(Sketcher.Constraint("Vertical", 20))
sketch4.addConstraint(Sketcher.Constraint("Vertical", 22))
sketch4.addConstraint(Sketcher.Constraint("Equal", 3, 5))
sketch4.addConstraint(Sketcher.Constraint("Equal", 7, 9))
sketch4.addConstraint(Sketcher.Constraint("Equal", 11, 13))
sketch4.addConstraint(Sketcher.Constraint("Equal", 15, 17))
sketch4.addConstraint(Sketcher.Constraint("Equal", 19, 21))
sketch4.addConstraint(Sketcher.Constraint("Symmetric", 7, 3, 9, 3, -1))
sketch4.addConstraint(Sketcher.Constraint("Symmetric", 1, 3, 21, 3, -1))
sketch4.addConstraint(Sketcher.Constraint("Horizontal", 3, 3, 5, 3))
sketch4.addConstraint(Sketcher.Constraint("Horizontal", 1, 3, 7, 3))
sketch4.addConstraint(Sketcher.Constraint("Horizontal", 13, 3, 17, 3))
sketch4.addConstraint(Sketcher.Constraint("Horizontal", 15, 3, 19, 3))
sketch4.addConstraint(Sketcher.Constraint("Horizontal", 11, 3, 23, 3))
sketch4.addConstraint(Sketcher.Constraint("Vertical", 11, 3, 13, 3))
sketch4.addConstraint(Sketcher.Constraint("Vertical", 3, 3, 17, 3))
sketch4.addConstraint(Sketcher.Constraint("Equal", 6, 8))
sketch4.addConstraint(Sketcher.Constraint("Equal", 10, 12))
sketch4.addConstraint(Sketcher.Constraint("DistanceY", 0, 1, 0, 2, Q("16 mm")))
sketch4.addConstraint(Sketcher.Constraint("Radius", 1, Q("1.75 mm")))
sketch4.addConstraint(Sketcher.Constraint("DistanceY", 1, 3, -1, 1, Q("82 mm")))
sketch4.addConstraint(Sketcher.Constraint("DistanceX", 3, 3, 5, 3, Q("142 mm")))
sketch4.addConstraint(Sketcher.Constraint("DistanceX", 0, 2, -1, 1, Q("37.4 mm")))
sketch4.addConstraint(Sketcher.Constraint("DistanceY", -1, 1, 13, 3, Q("200.474287 mm")))
sketch4.setExpression("Constraints[52]", "Params.sketch4_height")
sketch4.setExpression("Constraints[53]", "Params.sketch4_radius")
pocket3 = body.newObject("PartDesign::Pocket", "Pocket002")
pocket3.Profile = sketch4
pocket3.Type = "ThroughAll"
pocket3.Reversed = True

# Sketch on XZ plane
sketch5 = body.newObject("Sketcher::SketchObject", "Sketch004")
sketch5.AttachmentSupport = (doc.getObject("XZ_Plane"), [""])
sketch5.MapMode = "FlatFace"
sketch5.AttachmentOffset = App.Placement(Vector(0, 0, -3), App.Rotation())
sketch5.addGeometry(Part.Circle(Vector(101.6, 204.2, 0), Vector(0, 0, 1), 1.5), False)
sketch5.addGeometry(Part.Circle(Vector(101.1, 214.2, 0), Vector(0, 0, 1), 1.5), False)
sketch5.addGeometry(Part.Circle(Vector(-31.4, 215.7, 0), Vector(0, 0, 1), 1.5), False)
sketch5.addGeometry(Part.Circle(Vector(-30.9, 205.7, 0), Vector(0, 0, 1), 1.5), False)
sketch5.addGeometry(Part.Circle(Vector(-30.9, 86.6, 0), Vector(0, 0, 1), 1.5), False)
sketch5.addGeometry(Part.Circle(Vector(-31.4, 96.6, 0), Vector(0, 0, 1), 1.5), False)
sketch5.addGeometry(Part.Circle(Vector(101.6, 86.1, 0), Vector(0, 0, 1), 1.5), False)
sketch5.addGeometry(Part.Circle(Vector(100.9, -211, 0), Vector(0, 0, 1), 1.5), False)
sketch5.addGeometry(Part.Circle(Vector(101.4, -201, 0), Vector(0, 0, 1), 1.5), False)
sketch5.addGeometry(Part.Circle(Vector(101.6, -94, 0), Vector(0, 0, 1), 1.5), False)
sketch5.addGeometry(Part.Circle(Vector(101.1, -84, 0), Vector(0, 0, 1), 1.5), False)
sketch5.addGeometry(Part.Circle(Vector(-30.9, -211.2, 0), Vector(0, 0, 1), 1.5), False)
sketch5.addGeometry(Part.Circle(Vector(-31.4, -201.2, 0), Vector(0, 0, 1), 1.5), False)
sketch5.addGeometry(Part.Circle(Vector(-31.4, -84, 0), Vector(0, 0, 1), 1.5), False)
sketch5.addGeometry(Part.Circle(Vector(-30.9, -94, 0), Vector(0, 0, 1), 1.5), False)
sketch5.addConstraint(Sketcher.Constraint("Equal", 0, 1))
sketch5.addConstraint(Sketcher.Constraint("Equal", 1, 2))
sketch5.addConstraint(Sketcher.Constraint("Equal", 2, 3))
sketch5.addConstraint(Sketcher.Constraint("Equal", 3, 4))
sketch5.addConstraint(Sketcher.Constraint("Equal", 4, 5))
sketch5.addConstraint(Sketcher.Constraint("Equal", 5, 6))
sketch5.addConstraint(Sketcher.Constraint("Equal", 6, 7))
sketch5.addConstraint(Sketcher.Constraint("Equal", 7, 8))
sketch5.addConstraint(Sketcher.Constraint("Equal", 8, 9))
sketch5.addConstraint(Sketcher.Constraint("Equal", 9, 10))
sketch5.addConstraint(Sketcher.Constraint("Equal", 10, 11))
sketch5.addConstraint(Sketcher.Constraint("Equal", 11, 12))
sketch5.addConstraint(Sketcher.Constraint("Equal", 12, 13))
sketch5.addConstraint(Sketcher.Constraint("Equal", 13, 14))
sketch5.addConstraint(Sketcher.Constraint("Horizontal", 10, 3, 13, 3))
sketch5.addConstraint(Sketcher.Constraint("Horizontal", 9, 3, 14, 3))
sketch5.addConstraint(Sketcher.Constraint("Vertical", 3, 3, 4, 3))
sketch5.addConstraint(Sketcher.Constraint("Vertical", 2, 3, 5, 3))
sketch5.addConstraint(Sketcher.Constraint("Vertical", 0, 3, 6, 3))
sketch5.addConstraint(Sketcher.Constraint("Vertical", 6, 3, 9, 3))
sketch5.addConstraint(Sketcher.Constraint("Vertical", 1, 3, 10, 3))
sketch5.addConstraint(Sketcher.Constraint("Vertical", 5, 3, 13, 3))
sketch5.addConstraint(Sketcher.Constraint("Vertical", 4, 3, 14, 3))
sketch5.addConstraint(Sketcher.Constraint("Diameter", 0, Q("3 mm")))
sketch5.addConstraint(Sketcher.Constraint("DistanceX", -1, 1, 0, 3, Q("101.6 mm")))
sketch5.addConstraint(Sketcher.Constraint("DistanceX", 3, 3, -1, 1, Q("30.9 mm")))
sketch5.addConstraint(Sketcher.Constraint("DistanceX", 2, 3, 1, 3, Q("132.5 mm")))
sketch5.addConstraint(Sketcher.Constraint("DistanceY", 10, 3, -1, 1, Q("83.983001 mm")))
sketch5.addConstraint(Sketcher.Constraint("DistanceY", 4, 3, 3, 3, Q("119.171301 mm")))
sketch5.addConstraint(Sketcher.Constraint("DistanceY", 5, 3, 2, 3, Q("119.171301 mm")))
sketch5.addConstraint(Sketcher.Constraint("DistanceY", 6, 3, 4, 3, Q("0.420702 mm")))
sketch5.addConstraint(Sketcher.Constraint("DistanceY", -1, 1, 0, 3, Q("204.249871 mm")))
sketch5.addConstraint(Sketcher.Constraint("DistanceY", -1, 1, 3, 3, Q("205.740221 mm")))
sketch5.addConstraint(Sketcher.Constraint("DistanceX", -1, 1, 8, 3, Q("101.398562 mm")))
sketch5.addConstraint(Sketcher.Constraint("DistanceX", 12, 3, -1, 1, Q("31.398562 mm")))
sketch5.addConstraint(Sketcher.Constraint("DistanceY", 12, 3, -1, 1, Q("201.238909 mm")))
sketch5.addConstraint(Sketcher.Constraint("DistanceY", 1, 3, 2, 3, Q("1.49035 mm")))
sketch5.addConstraint(Sketcher.Constraint("DistanceX", 5, 3, 7, 3, Q("132.298562 mm")))
sketch5.addConstraint(Sketcher.Constraint("DistanceY", 7, 3, 5, 3, Q("307.515139 mm")))
sketch5.addConstraint(Sketcher.Constraint("DistanceY", 8, 3, 6, 3, Q("287.11939 mm")))
sketch5.addConstraint(Sketcher.Constraint("DistanceX", 5, 3, 8, 3, Q("132.797938 mm")))
sketch5.addConstraint(Sketcher.Constraint("DistanceY", 8, 3, 9, 3, Q("107.000649 mm")))
sketch5.addConstraint(Sketcher.Constraint("DistanceX", 11, 3, 7, 3, Q("131.798371 mm")))
sketch5.addConstraint(Sketcher.Constraint("DistanceY", 11, 3, 8, 3, Q("10.25526 mm")))
sketch5.addConstraint(Sketcher.Constraint("DistanceY", -1, 1, 1, 3, Q("214.237394 mm")))
sketch5.setExpression("Constraints[23]", "Params.sketch5_diameter")
pocket4 = body.newObject("PartDesign::Pocket", "Pocket003")
pocket4.Profile = sketch5
pocket4.Type = "ThroughAll"
pocket4.Reversed = True

# Sketch on XZ plane
sketch6 = body.newObject("Sketcher::SketchObject", "Sketch005")
sketch6.AttachmentSupport = (doc.getObject("XZ_Plane"), [""])
sketch6.MapMode = "FlatFace"
sketch6.AttachmentOffset = App.Placement(Vector(0, 0, -3), App.Rotation())
sketch6.addGeometry(Part.Circle(Vector(101.1, 96.1, 0), Vector(0, 0, 1), 1.5), False)
sketch6.addConstraint(Sketcher.Constraint("Diameter", 0, Q("3 mm")))
sketch6.addConstraint(Sketcher.Constraint("DistanceX", -1, 1, 0, 3, Q("101.1 mm")))
sketch6.addConstraint(Sketcher.Constraint("DistanceY", -1, 1, 0, 3, Q("96.148218 mm")))
sketch6.setExpression("Constraints[0]", "Params.sketch6_diameter")
pocket5 = body.newObject("PartDesign::Pocket", "Pocket004")
pocket5.Profile = sketch6
pocket5.Type = "ThroughAll"
pocket5.Reversed = True

# Sketch on XZ plane
sketch7 = body.newObject("Sketcher::SketchObject", "Sketch006")
sketch7.AttachmentSupport = (doc.getObject("XZ_Plane"), [""])
sketch7.MapMode = "FlatFace"
sketch7.AttachmentOffset = App.Placement(Vector(0, 0, -3), App.Rotation())
sketch7.addGeometry(Part.Circle(Vector(35.1, 193.7, 0), Vector(0, 0, 1), 17), False)
sketch7.addGeometry(Part.ArcOfCircle(Part.Circle(Vector(10, 179.2, 0), Vector(0, 0, 1), 2.1), math.radians(30), math.radians(210)), False)
sketch7.addGeometry(Part.ArcOfCircle(Part.Circle(Vector(10, 179.2, 0), Vector(0, 0, 1), 2.1), math.radians(-150), math.radians(30)), False)
sketch7.addGeometry(Part.Circle(Vector(60.3, 179.2, 0), Vector(0, 0, 1), 2.1), False)
sketch7.addGeometry(Part.Circle(Vector(35.1, 222.7, 0), Vector(0, 0, 1), 2.1), False)
sketch7.addConstraint(Sketcher.Constraint("Tangent", 1, 1, 2, 2))
sketch7.addConstraint(Sketcher.Constraint("Coincident", 2, 1, 1, 2))
sketch7.addConstraint(Sketcher.Constraint("Equal", 2, 3))
sketch7.addConstraint(Sketcher.Constraint("Equal", 3, 4))
sketch7.addConstraint(Sketcher.Constraint("Horizontal", 2, 3, 3, 3))
sketch7.addConstraint(Sketcher.Constraint("Vertical", 0, 3, 4, 3))
sketch7.addConstraint(Sketcher.Constraint("Diameter", 0, Q("34 mm")))
sketch7.addConstraint(Sketcher.Constraint("Diameter", 3, Q("4.2 mm")))
sketch7.addConstraint(Sketcher.Constraint("DistanceY", 0, 3, 4, 3, Q("29 mm")))
sketch7.addConstraint(Sketcher.Constraint("DistanceY", 1, 3, 0, 3, Q("14.5 mm")))
sketch7.addConstraint(Sketcher.Constraint("DistanceY", 2, 1, 1, 1, Q("2.1 mm")))
sketch7.addConstraint(Sketcher.Constraint("DistanceY", 2, 3, 1, 1, Q("1.05 mm")))
sketch7.addConstraint(Sketcher.Constraint("DistanceX", -1, 1, 1, 3, Q("10.03048 mm")))
sketch7.addConstraint(Sketcher.Constraint("DistanceX", 1, 1, 3, 3, Q("48.41082 mm")))
sketch7.addConstraint(Sketcher.Constraint("DistanceX", 2, 1, 0, 3, Q("26.93339 mm")))
sketch7.addConstraint(Sketcher.Constraint("DistanceY", -1, 1, 0, 3, Q("193.704793 mm")))
sketch7.setExpression("Constraints[6]", "Params.sketch7_diameter")
sketch7.setExpression("Constraints[7]", "Params.sketch7_diameter2")
pocket6 = body.newObject("PartDesign::Pocket", "Pocket005")
pocket6.Profile = sketch7
pocket6.setExpression("Length", "Params.pocket6_length")
pocket6.Reversed = True

# Sketch on XZ plane
sketch8 = body.newObject("Sketcher::SketchObject", "Sketch007")
sketch8.AttachmentSupport = (doc.getObject("XZ_Plane"), [""])
sketch8.MapMode = "FlatFace"
sketch8.AttachmentOffset = App.Placement(Vector(0, 0, -3), App.Rotation())
add_polygon(sketch8, [(5, -235), (5, -197), (65, -197), (65, -235)])  # lines 0-3
sketch8.addConstraint(Sketcher.Constraint("Vertical", 0))
sketch8.addConstraint(Sketcher.Constraint("Horizontal", 1))
sketch8.addConstraint(Sketcher.Constraint("Vertical", 2))
sketch8.addConstraint(Sketcher.Constraint("Horizontal", 3))
sketch8.addConstraint(Sketcher.Constraint("DistanceY", 2, 2, -1, 1, Q("235.15 mm")))
sketch8.addConstraint(Sketcher.Constraint("DistanceY", 0, 1, 0, 2, Q("38.40875 mm")))
sketch8.addConstraint(Sketcher.Constraint("DistanceX", 1, 1, 1, 2, Q("59.555937 mm")))
sketch8.addConstraint(Sketcher.Constraint("DistanceX", -1, 1, 0, 2, Q("5.346168 mm")))
pocket7 = body.newObject("PartDesign::Pocket", "Pocket006")
pocket7.Profile = sketch8
pocket7.setExpression("Length", "Params.pocket7_length")
pocket7.Reversed = True

# Sketch on XZ plane
sketch9 = body.newObject("Sketcher::SketchObject", "Sketch008")
sketch9.AttachmentSupport = (doc.getObject("XZ_Plane"), [""])
sketch9.MapMode = "FlatFace"
sketch9.AttachmentOffset = App.Placement(Vector(0, 0, -3), App.Rotation())
sketch9.addGeometry(Part.Circle(Vector(-0.9, -201.7, 0), Vector(0, 0, 1), 1.2), False)
sketch9.addGeometry(Part.Circle(Vector(-0.9, -223.7, 0), Vector(0, 0, 1), 1.2), False)
sketch9.addGeometry(Part.Circle(Vector(74.1, -201.7, 0), Vector(0, 0, 1), 1.2), False)
sketch9.addGeometry(Part.Circle(Vector(74.1, -223.7, 0), Vector(0, 0, 1), 1.2), False)
sketch9.addConstraint(Sketcher.Constraint("Equal", 0, 1))
sketch9.addConstraint(Sketcher.Constraint("Equal", 1, 2))
sketch9.addConstraint(Sketcher.Constraint("Equal", 2, 3))
sketch9.addConstraint(Sketcher.Constraint("Horizontal", 0, 3, 2, 3))
sketch9.addConstraint(Sketcher.Constraint("Horizontal", 1, 3, 3, 3))
sketch9.addConstraint(Sketcher.Constraint("Vertical", 0, 3, 1, 3))
sketch9.addConstraint(Sketcher.Constraint("Vertical", 2, 3, 3, 3))
sketch9.addConstraint(Sketcher.Constraint("Diameter", 0, Q("2.5 mm")))
sketch9.addConstraint(Sketcher.Constraint("DistanceY", 1, 3, 0, 3, Q("22 mm")))
sketch9.addConstraint(Sketcher.Constraint("DistanceX", 0, 3, 2, 3, Q("75 mm")))
sketch9.addConstraint(Sketcher.Constraint("DistanceY", 0, 3, -1, 1, Q("201.65 mm")))
sketch9.addConstraint(Sketcher.Constraint("DistanceX", 0, 3, -1, 1, Q("0.892029 mm")))
sketch9.setExpression("Constraints[7]", "Params.sketch9_diameter")
pocket8 = body.newObject("PartDesign::Pocket", "Pocket007")
pocket8.Profile = sketch9
pocket8.setExpression("Length", "Params.pocket8_length")
pocket8.Reversed = True
doc.recompute()

fillet2 = body.newObject("PartDesign::Fillet", "Fillet001")
fillet2.Base = (pocket8, edges_at(pocket8, [
    (5.346, 1.5, -235.15),
    (64.902, 1.5, -235.15),
    (64.902, 1.5, -196.741),
    (5.346, 1.5, -196.741),
]))
fillet2.setExpression("Radius", "Params.fillet2_radius")

# Sketch on XZ plane
sketch10 = body.newObject("Sketcher::SketchObject", "Sketch009")
sketch10.AttachmentSupport = (doc.getObject("XZ_Plane"), [""])
sketch10.MapMode = "FlatFace"
sketch10.addGeometry(Part.Circle(Vector(-26.3, 31.5, 0), Vector(0, 0, 1), 1.8), False)
sketch10.addGeometry(Part.Circle(Vector(5.7, 31.5, 0), Vector(0, 0, 1), 1.8), False)
sketch10.addGeometry(Part.Circle(Vector(-26.3, -31.5, 0), Vector(0, 0, 1), 1.8), False)
sketch10.addGeometry(Part.Circle(Vector(5.7, -31.5, 0), Vector(0, 0, 1), 1.8), False)
sketch10.addConstraint(Sketcher.Constraint("Equal", 0, 1))
sketch10.addConstraint(Sketcher.Constraint("Equal", 1, 2))
sketch10.addConstraint(Sketcher.Constraint("Equal", 2, 3))
sketch10.addConstraint(Sketcher.Constraint("Symmetric", 0, 3, 2, 3, -1))
sketch10.addConstraint(Sketcher.Constraint("Symmetric", 1, 3, 3, 3, -1))
sketch10.addConstraint(Sketcher.Constraint("Horizontal", 0, 3, 1, 3))
sketch10.addConstraint(Sketcher.Constraint("Diameter", 0, Q("3.5 mm")))
sketch10.addConstraint(Sketcher.Constraint("DistanceX", 0, 3, 1, 3, Q("32 mm")))
sketch10.addConstraint(Sketcher.Constraint("DistanceY", 2, 3, 0, 3, Q("63 mm")))
sketch10.addConstraint(Sketcher.Constraint("DistanceX", 0, 3, -1, 1, Q("26.315013 mm")))
sketch10.setExpression("Constraints[6]", "Params.sketch10_diameter")
pocket9 = body.newObject("PartDesign::Pocket", "Pocket008")
pocket9.Profile = sketch10
pocket9.setExpression("Length", "Params.pocket9_length")

doc.recompute()
